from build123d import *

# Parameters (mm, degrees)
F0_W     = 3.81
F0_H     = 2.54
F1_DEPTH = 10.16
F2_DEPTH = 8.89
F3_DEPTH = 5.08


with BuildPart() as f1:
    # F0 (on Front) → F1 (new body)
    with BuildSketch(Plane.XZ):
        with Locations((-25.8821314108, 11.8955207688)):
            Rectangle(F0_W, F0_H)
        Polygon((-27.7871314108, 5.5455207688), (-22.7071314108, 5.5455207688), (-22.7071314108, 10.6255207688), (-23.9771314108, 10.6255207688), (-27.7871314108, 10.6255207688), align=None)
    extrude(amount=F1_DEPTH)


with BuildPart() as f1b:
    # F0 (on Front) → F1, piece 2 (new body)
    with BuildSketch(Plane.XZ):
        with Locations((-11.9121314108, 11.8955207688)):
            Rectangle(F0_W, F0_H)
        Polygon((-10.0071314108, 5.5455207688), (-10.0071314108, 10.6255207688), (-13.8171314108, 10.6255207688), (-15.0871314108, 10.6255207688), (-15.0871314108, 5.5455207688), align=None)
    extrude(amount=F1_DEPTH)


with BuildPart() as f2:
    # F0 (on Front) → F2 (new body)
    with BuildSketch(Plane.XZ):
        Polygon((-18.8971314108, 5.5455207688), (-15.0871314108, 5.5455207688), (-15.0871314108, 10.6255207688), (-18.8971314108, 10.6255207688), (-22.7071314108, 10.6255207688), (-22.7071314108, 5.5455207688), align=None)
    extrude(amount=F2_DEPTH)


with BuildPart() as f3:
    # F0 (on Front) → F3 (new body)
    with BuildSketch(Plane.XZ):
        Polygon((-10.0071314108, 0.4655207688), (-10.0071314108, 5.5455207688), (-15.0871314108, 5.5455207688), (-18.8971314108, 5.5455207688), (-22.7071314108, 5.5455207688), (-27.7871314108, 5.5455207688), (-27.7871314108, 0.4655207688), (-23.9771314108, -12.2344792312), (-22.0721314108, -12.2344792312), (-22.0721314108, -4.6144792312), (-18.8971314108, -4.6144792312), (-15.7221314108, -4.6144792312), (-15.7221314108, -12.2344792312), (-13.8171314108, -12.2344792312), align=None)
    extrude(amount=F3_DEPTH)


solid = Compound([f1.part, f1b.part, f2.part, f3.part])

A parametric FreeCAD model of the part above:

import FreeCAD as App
import Part
import Sketcher
from FreeCAD import Vector
Q = App.Units.Quantity

doc = App.newDocument("Part")
body = doc.addObject("PartDesign::Body", "Body")

# Sketch on XZ plane
sketch1 = body.newObject("Sketcher::SketchObject", "Sketch")
sketch1.AttachmentSupport = (doc.getObject("XZ_Plane"), [""])
sketch1.MapMode = "FlatFace"
sketch1.addGeometry(Part.LineSegment(Vector(-27.8, 13.2, 0), Vector(-27.8, 5.5, 0)), False)
sketch1.addGeometry(Part.LineSegment(Vector(-27.8, 5.5, 0), Vector(-22.7, 5.5, 0)), False)
sketch1.addGeometry(Part.LineSegment(Vector(-22.7, 5.5, 0), Vector(-22.7, 10.6, 0)), False)
sketch1.addGeometry(Part.LineSegment(Vector(-22.7, 10.6, 0), Vector(-24, 10.6, 0)), False)
sketch1.addGeometry(Part.LineSegment(Vector(-24, 10.6, 0), Vector(-24, 13.2, 0)), False)
sketch1.addGeometry(Part.LineSegment(Vector(-24, 13.2, 0), Vector(-27.8, 13.2, 0)), False)
sketch1.addConstraint(Sketcher.Constraint("Coincident", 0, 2, 1, 1))
sketch1.addConstraint(Sketcher.Constraint("Coincident", 1, 2, 2, 1))
sketch1.addConstraint(Sketcher.Constraint("Coincident", 2, 2, 3, 1))
sketch1.addConstraint(Sketcher.Constraint("Coincident", 3, 2, 4, 1))
sketch1.addConstraint(Sketcher.Constraint("Coincident", 4, 2, 5, 1))
sketch1.addConstraint(Sketcher.Constraint("Coincident", 5, 2, 0, 1))
sketch1.addConstraint(Sketcher.Constraint("Vertical", 0))
sketch1.addConstraint(Sketcher.Constraint("Horizontal", 1))
sketch1.addConstraint(Sketcher.Constraint("Vertical", 2))
sketch1.addConstraint(Sketcher.Constraint("Horizontal", 3))
sketch1.addConstraint(Sketcher.Constraint("Vertical", 4))
sketch1.addConstraint(Sketcher.Constraint("Horizontal", 5))
sketch1.addConstraint(Sketcher.Constraint("Equal", 1, 2))
sketch1.addConstraint(Sketcher.Constraint("DistanceX", 1, 1, 1, 2, Q("0.2 in")))
sketch1.addConstraint(Sketcher.Constraint("DistanceY", 0, 2, 0, 1, Q("0.3 in")))
sketch1.addConstraint(Sketcher.Constraint("DistanceX", 3, 2, 3, 1, Q("0.05 in")))
sketch1.addConstraint(Sketcher.Constraint("DistanceX", 0, 2, -1, 1, Q("27.787131 mm")))
sketch1.addConstraint(Sketcher.Constraint("DistanceY", -1, 1, 0, 2, Q("5.545521 mm")))
pad1 = body.newObject("PartDesign::Pad", "Pad")
pad1.Profile = sketch1
pad1.Length = Q("0.4 in")
body2 = doc.addObject("PartDesign::Body", "Body001")

# Sketch on XZ plane
sketch2 = body2.newObject("Sketcher::SketchObject", "Sketch001")
sketch2.AttachmentSupport = (doc.getObject("XZ_Plane001"), [""])
sketch2.MapMode = "FlatFace"
sketch2.addGeometry(Part.LineSegment(Vector(-13.8, 13.2, 0), Vector(-13.8, 10.6, 0)), False)
sketch2.addGeometry(Part.LineSegment(Vector(-13.8, 10.6, 0), Vector(-15.1, 10.6, 0)), False)
sketch2.addGeometry(Part.LineSegment(Vector(-15.1, 10.6, 0), Vector(-15.1, 5.5, 0)), False)
sketch2.addGeometry(Part.LineSegment(Vector(-15.1, 5.5, 0), Vector(-10, 5.5, 0)), False)
sketch2.addGeometry(Part.LineSegment(Vector(-10, 5.5, 0), Vector(-10, 13.2, 0)), False)
sketch2.addGeometry(Part.LineSegment(Vector(-10, 13.2, 0), Vector(-13.8, 13.2, 0)), False)
sketch2.addConstraint(Sketcher.Constraint("Coincident", 0, 2, 1, 1))
sketch2.addConstraint(Sketcher.Constraint("Coincident", 1, 2, 2, 1))
sketch2.addConstraint(Sketcher.Constraint("Coincident", 2, 2, 3, 1))
sketch2.addConstraint(Sketcher.Constraint("Coincident", 3, 2, 4, 1))
sketch2.addConstraint(Sketcher.Constraint("Coincident", 4, 2, 5, 1))
sketch2.addConstraint(Sketcher.Constraint("Coincident", 5, 2, 0, 1))
sketch2.addConstraint(Sketcher.Constraint("Vertical", 0))
sketch2.addConstraint(Sketcher.Constraint("Horizontal", 1))
sketch2.addConstraint(Sketcher.Constraint("Vertical", 2))
sketch2.addConstraint(Sketcher.Constraint("Horizontal", 3))
sketch2.addConstraint(Sketcher.Constraint("Vertical", 4))
sketch2.addConstraint(Sketcher.Constraint("Horizontal", 5))
sketch2.addConstraint(Sketcher.Constraint("Equal", 3, 2))
sketch2.addConstraint(Sketcher.Constraint("DistanceX", 3, 1, 3, 2, Q("0.2 in")))
sketch2.addConstraint(Sketcher.Constraint("DistanceY", 0, 2, 0, 1, Q("0.1 in")))
sketch2.addConstraint(Sketcher.Constraint("DistanceX", 1, 2, 1, 1, Q("0.05 in")))
sketch2.addConstraint(Sketcher.Constraint("DistanceX", 0, 2, -1, 1, Q("13.817131 mm")))
sketch2.addConstraint(Sketcher.Constraint("DistanceY", -1, 1, 0, 2, Q("10.625521 mm")))
pad2 = body2.newObject("PartDesign::Pad", "Pad001")
pad2.Profile = sketch2
pad2.Length = Q("0.4 in")
body3 = doc.addObject("PartDesign::Body", "Body002")

# Sketch on XZ plane
sketch3 = body3.newObject("Sketcher::SketchObject", "Sketch002")
sketch3.AttachmentSupport = (doc.getObject("XZ_Plane002"), [""])
sketch3.MapMode = "FlatFace"
sketch3.addGeometry(Part.LineSegment(Vector(-15, 6, 0), Vector(-15, 11, 0)), False)
sketch3.addGeometry(Part.LineSegment(Vector(-15, 11, 0), Vector(-23, 11, 0)), False)
sketch3.addGeometry(Part.LineSegment(Vector(-23, 11, 0), Vector(-23, 6, 0)), False)
sketch3.addGeometry(Part.LineSegment(Vector(-23, 6, 0), Vector(-15, 6, 0)), False)
sketch3.addConstraint(Sketcher.Constraint("Coincident", 0, 2, 1, 1))
sketch3.addConstraint(Sketcher.Constraint("Coincident", 1, 2, 2, 1))
sketch3.addConstraint(Sketcher.Constraint("Coincident", 2, 2, 3, 1))
sketch3.addConstraint(Sketcher.Constraint("Coincident", 3, 2, 0, 1))
sketch3.addConstraint(Sketcher.Constraint("Vertical", 0))
sketch3.addConstraint(Sketcher.Constraint("Horizontal", 1))
sketch3.addConstraint(Sketcher.Constraint("Vertical", 2))
sketch3.addConstraint(Sketcher.Constraint("Horizontal", 3))
sketch3.addConstraint(Sketcher.Constraint("DistanceX", 1, 2, 1, 1, Q("0.3 in")))
sketch3.addConstraint(Sketcher.Constraint("DistanceY", 0, 1, 0, 2, Q("0.2 in")))
sketch3.addConstraint(Sketcher.Constraint("DistanceX", 0, 2, -1, 1, Q("15.087131 mm")))
sketch3.addConstraint(Sketcher.Constraint("DistanceY", -1, 1, 0, 2, Q("10.625521 mm")))
pad3 = body3.newObject("PartDesign::Pad", "Pad002")
pad3.Profile = sketch3
pad3.Length = Q("0.35 in")
body4 = doc.addObject("PartDesign::Body", "Body003")

# Sketch on XZ plane
sketch4 = body4.newObject("Sketcher::SketchObject", "Sketch003")
sketch4.AttachmentSupport = (doc.getObject("XZ_Plane003"), [""])
sketch4.MapMode = "FlatFace"
sketch4.addGeometry(Part.LineSegment(Vector(-10, 0.5, 0), Vector(-10, 5.5, 0)), False)
sketch4.addGeometry(Part.LineSegment(Vector(-10, 5.5, 0), Vector(-27.8, 5.5, 0)), False)
sketch4.addGeometry(Part.LineSegment(Vector(-27.8, 5.5, 0), Vector(-27.8, 0.5, 0)), False)
sketch4.addGeometry(Part.LineSegment(Vector(-27.8, 0.5, 0), Vector(-24, -12.2, 0)), False)
sketch4.addGeometry(Part.LineSegment(Vector(-24, -12.2, 0), Vector(-22.1, -12.2, 0)), False)
sketch4.addGeometry(Part.LineSegment(Vector(-22.1, -12.2, 0), Vector(-22.1, -4.6, 0)), False)
sketch4.addGeometry(Part.LineSegment(Vector(-22.1, -4.6, 0), Vector(-15.7, -4.6, 0)), False)
sketch4.addGeometry(Part.LineSegment(Vector(-15.7, -4.6, 0), Vector(-15.7, -12.2, 0)), False)
sketch4.addGeometry(Part.LineSegment(Vector(-15.7, -12.2, 0), Vector(-13.8, -12.2, 0)), False)
sketch4.addGeometry(Part.LineSegment(Vector(-13.8, -12.2, 0), Vector(-10, 0.5, 0)), False)
sketch4.addConstraint(Sketcher.Constraint("Coincident", 0, 2, 1, 1))
sketch4.addConstraint(Sketcher.Constraint("Coincident", 1, 2, 2, 1))
sketch4.addConstraint(Sketcher.Constraint("Coincident", 2, 2, 3, 1))
sketch4.addConstraint(Sketcher.Constraint("Coincident", 3, 2, 4, 1))
sketch4.addConstraint(Sketcher.Constraint("Coincident", 4, 2, 5, 1))
sketch4.addConstraint(Sketcher.Constraint("Coincident", 5, 2, 6, 1))
sketch4.addConstraint(Sketcher.Constraint("Coincident", 6, 2, 7, 1))
sketch4.addConstraint(Sketcher.Constraint("Coincident", 7, 2, 8, 1))
sketch4.addConstraint(Sketcher.Constraint("Coincident", 8, 2, 9, 1))
sketch4.addConstraint(Sketcher.Constraint("Coincident", 9, 2, 0, 1))
sketch4.addConstraint(Sketcher.Constraint("Vertical", 0))
sketch4.addConstraint(Sketcher.Constraint("Horizontal", 1))
sketch4.addConstraint(Sketcher.Constraint("Vertical", 2))
sketch4.addConstraint(Sketcher.Constraint("Horizontal", 4))
sketch4.addConstraint(Sketcher.Constraint("Vertical", 5))
sketch4.addConstraint(Sketcher.Constraint("Horizontal", 6))
sketch4.addConstraint(Sketcher.Constraint("Vertical", 7))
sketch4.addConstraint(Sketcher.Constraint("Horizontal", 8))
sketch4.addConstraint(Sketcher.Constraint("Horizontal", 4, 2, 7, 2))
sketch4.addConstraint(Sketcher.Constraint("Horizontal", 2, 2, 9, 2))
sketch4.addConstraint(Sketcher.Constraint("Equal", 4, 8))
sketch4.addConstraint(Sketcher.Constraint("Equal", 3, 9))
sketch4.addConstraint(Sketcher.Constraint("DistanceX", 1, 2, 1, 1, Q("0.7 in")))
sketch4.addConstraint(Sketcher.Constraint("DistanceY", 0, 1, 0, 2, Q("0.2 in")))
sketch4.addConstraint(Sketcher.Constraint("DistanceY", 5, 1, 5, 2, Q("0.3 in")))
sketch4.addConstraint(Sketcher.Constraint("DistanceX", 6, 1, 6, 2, Q("0.25 in")))
sketch4.addConstraint(Sketcher.Constraint("DistanceY", 3, 2, 2, 2, Q("0.5 in")))
sketch4.addConstraint(Sketcher.Constraint("DistanceX", 3, 2, 8, 2, Q("0.4 in")))
sketch4.addConstraint(Sketcher.Constraint("DistanceX", 0, 2, -1, 1, Q("10.007131 mm")))
sketch4.addConstraint(Sketcher.Constraint("DistanceY", -1, 1, 0, 2, Q("5.545521 mm")))
pad4 = body4.newObject("PartDesign::Pad", "Pad003")
pad4.Profile = sketch4
pad4.Length = Q("0.2 in")

doc.recompute()
